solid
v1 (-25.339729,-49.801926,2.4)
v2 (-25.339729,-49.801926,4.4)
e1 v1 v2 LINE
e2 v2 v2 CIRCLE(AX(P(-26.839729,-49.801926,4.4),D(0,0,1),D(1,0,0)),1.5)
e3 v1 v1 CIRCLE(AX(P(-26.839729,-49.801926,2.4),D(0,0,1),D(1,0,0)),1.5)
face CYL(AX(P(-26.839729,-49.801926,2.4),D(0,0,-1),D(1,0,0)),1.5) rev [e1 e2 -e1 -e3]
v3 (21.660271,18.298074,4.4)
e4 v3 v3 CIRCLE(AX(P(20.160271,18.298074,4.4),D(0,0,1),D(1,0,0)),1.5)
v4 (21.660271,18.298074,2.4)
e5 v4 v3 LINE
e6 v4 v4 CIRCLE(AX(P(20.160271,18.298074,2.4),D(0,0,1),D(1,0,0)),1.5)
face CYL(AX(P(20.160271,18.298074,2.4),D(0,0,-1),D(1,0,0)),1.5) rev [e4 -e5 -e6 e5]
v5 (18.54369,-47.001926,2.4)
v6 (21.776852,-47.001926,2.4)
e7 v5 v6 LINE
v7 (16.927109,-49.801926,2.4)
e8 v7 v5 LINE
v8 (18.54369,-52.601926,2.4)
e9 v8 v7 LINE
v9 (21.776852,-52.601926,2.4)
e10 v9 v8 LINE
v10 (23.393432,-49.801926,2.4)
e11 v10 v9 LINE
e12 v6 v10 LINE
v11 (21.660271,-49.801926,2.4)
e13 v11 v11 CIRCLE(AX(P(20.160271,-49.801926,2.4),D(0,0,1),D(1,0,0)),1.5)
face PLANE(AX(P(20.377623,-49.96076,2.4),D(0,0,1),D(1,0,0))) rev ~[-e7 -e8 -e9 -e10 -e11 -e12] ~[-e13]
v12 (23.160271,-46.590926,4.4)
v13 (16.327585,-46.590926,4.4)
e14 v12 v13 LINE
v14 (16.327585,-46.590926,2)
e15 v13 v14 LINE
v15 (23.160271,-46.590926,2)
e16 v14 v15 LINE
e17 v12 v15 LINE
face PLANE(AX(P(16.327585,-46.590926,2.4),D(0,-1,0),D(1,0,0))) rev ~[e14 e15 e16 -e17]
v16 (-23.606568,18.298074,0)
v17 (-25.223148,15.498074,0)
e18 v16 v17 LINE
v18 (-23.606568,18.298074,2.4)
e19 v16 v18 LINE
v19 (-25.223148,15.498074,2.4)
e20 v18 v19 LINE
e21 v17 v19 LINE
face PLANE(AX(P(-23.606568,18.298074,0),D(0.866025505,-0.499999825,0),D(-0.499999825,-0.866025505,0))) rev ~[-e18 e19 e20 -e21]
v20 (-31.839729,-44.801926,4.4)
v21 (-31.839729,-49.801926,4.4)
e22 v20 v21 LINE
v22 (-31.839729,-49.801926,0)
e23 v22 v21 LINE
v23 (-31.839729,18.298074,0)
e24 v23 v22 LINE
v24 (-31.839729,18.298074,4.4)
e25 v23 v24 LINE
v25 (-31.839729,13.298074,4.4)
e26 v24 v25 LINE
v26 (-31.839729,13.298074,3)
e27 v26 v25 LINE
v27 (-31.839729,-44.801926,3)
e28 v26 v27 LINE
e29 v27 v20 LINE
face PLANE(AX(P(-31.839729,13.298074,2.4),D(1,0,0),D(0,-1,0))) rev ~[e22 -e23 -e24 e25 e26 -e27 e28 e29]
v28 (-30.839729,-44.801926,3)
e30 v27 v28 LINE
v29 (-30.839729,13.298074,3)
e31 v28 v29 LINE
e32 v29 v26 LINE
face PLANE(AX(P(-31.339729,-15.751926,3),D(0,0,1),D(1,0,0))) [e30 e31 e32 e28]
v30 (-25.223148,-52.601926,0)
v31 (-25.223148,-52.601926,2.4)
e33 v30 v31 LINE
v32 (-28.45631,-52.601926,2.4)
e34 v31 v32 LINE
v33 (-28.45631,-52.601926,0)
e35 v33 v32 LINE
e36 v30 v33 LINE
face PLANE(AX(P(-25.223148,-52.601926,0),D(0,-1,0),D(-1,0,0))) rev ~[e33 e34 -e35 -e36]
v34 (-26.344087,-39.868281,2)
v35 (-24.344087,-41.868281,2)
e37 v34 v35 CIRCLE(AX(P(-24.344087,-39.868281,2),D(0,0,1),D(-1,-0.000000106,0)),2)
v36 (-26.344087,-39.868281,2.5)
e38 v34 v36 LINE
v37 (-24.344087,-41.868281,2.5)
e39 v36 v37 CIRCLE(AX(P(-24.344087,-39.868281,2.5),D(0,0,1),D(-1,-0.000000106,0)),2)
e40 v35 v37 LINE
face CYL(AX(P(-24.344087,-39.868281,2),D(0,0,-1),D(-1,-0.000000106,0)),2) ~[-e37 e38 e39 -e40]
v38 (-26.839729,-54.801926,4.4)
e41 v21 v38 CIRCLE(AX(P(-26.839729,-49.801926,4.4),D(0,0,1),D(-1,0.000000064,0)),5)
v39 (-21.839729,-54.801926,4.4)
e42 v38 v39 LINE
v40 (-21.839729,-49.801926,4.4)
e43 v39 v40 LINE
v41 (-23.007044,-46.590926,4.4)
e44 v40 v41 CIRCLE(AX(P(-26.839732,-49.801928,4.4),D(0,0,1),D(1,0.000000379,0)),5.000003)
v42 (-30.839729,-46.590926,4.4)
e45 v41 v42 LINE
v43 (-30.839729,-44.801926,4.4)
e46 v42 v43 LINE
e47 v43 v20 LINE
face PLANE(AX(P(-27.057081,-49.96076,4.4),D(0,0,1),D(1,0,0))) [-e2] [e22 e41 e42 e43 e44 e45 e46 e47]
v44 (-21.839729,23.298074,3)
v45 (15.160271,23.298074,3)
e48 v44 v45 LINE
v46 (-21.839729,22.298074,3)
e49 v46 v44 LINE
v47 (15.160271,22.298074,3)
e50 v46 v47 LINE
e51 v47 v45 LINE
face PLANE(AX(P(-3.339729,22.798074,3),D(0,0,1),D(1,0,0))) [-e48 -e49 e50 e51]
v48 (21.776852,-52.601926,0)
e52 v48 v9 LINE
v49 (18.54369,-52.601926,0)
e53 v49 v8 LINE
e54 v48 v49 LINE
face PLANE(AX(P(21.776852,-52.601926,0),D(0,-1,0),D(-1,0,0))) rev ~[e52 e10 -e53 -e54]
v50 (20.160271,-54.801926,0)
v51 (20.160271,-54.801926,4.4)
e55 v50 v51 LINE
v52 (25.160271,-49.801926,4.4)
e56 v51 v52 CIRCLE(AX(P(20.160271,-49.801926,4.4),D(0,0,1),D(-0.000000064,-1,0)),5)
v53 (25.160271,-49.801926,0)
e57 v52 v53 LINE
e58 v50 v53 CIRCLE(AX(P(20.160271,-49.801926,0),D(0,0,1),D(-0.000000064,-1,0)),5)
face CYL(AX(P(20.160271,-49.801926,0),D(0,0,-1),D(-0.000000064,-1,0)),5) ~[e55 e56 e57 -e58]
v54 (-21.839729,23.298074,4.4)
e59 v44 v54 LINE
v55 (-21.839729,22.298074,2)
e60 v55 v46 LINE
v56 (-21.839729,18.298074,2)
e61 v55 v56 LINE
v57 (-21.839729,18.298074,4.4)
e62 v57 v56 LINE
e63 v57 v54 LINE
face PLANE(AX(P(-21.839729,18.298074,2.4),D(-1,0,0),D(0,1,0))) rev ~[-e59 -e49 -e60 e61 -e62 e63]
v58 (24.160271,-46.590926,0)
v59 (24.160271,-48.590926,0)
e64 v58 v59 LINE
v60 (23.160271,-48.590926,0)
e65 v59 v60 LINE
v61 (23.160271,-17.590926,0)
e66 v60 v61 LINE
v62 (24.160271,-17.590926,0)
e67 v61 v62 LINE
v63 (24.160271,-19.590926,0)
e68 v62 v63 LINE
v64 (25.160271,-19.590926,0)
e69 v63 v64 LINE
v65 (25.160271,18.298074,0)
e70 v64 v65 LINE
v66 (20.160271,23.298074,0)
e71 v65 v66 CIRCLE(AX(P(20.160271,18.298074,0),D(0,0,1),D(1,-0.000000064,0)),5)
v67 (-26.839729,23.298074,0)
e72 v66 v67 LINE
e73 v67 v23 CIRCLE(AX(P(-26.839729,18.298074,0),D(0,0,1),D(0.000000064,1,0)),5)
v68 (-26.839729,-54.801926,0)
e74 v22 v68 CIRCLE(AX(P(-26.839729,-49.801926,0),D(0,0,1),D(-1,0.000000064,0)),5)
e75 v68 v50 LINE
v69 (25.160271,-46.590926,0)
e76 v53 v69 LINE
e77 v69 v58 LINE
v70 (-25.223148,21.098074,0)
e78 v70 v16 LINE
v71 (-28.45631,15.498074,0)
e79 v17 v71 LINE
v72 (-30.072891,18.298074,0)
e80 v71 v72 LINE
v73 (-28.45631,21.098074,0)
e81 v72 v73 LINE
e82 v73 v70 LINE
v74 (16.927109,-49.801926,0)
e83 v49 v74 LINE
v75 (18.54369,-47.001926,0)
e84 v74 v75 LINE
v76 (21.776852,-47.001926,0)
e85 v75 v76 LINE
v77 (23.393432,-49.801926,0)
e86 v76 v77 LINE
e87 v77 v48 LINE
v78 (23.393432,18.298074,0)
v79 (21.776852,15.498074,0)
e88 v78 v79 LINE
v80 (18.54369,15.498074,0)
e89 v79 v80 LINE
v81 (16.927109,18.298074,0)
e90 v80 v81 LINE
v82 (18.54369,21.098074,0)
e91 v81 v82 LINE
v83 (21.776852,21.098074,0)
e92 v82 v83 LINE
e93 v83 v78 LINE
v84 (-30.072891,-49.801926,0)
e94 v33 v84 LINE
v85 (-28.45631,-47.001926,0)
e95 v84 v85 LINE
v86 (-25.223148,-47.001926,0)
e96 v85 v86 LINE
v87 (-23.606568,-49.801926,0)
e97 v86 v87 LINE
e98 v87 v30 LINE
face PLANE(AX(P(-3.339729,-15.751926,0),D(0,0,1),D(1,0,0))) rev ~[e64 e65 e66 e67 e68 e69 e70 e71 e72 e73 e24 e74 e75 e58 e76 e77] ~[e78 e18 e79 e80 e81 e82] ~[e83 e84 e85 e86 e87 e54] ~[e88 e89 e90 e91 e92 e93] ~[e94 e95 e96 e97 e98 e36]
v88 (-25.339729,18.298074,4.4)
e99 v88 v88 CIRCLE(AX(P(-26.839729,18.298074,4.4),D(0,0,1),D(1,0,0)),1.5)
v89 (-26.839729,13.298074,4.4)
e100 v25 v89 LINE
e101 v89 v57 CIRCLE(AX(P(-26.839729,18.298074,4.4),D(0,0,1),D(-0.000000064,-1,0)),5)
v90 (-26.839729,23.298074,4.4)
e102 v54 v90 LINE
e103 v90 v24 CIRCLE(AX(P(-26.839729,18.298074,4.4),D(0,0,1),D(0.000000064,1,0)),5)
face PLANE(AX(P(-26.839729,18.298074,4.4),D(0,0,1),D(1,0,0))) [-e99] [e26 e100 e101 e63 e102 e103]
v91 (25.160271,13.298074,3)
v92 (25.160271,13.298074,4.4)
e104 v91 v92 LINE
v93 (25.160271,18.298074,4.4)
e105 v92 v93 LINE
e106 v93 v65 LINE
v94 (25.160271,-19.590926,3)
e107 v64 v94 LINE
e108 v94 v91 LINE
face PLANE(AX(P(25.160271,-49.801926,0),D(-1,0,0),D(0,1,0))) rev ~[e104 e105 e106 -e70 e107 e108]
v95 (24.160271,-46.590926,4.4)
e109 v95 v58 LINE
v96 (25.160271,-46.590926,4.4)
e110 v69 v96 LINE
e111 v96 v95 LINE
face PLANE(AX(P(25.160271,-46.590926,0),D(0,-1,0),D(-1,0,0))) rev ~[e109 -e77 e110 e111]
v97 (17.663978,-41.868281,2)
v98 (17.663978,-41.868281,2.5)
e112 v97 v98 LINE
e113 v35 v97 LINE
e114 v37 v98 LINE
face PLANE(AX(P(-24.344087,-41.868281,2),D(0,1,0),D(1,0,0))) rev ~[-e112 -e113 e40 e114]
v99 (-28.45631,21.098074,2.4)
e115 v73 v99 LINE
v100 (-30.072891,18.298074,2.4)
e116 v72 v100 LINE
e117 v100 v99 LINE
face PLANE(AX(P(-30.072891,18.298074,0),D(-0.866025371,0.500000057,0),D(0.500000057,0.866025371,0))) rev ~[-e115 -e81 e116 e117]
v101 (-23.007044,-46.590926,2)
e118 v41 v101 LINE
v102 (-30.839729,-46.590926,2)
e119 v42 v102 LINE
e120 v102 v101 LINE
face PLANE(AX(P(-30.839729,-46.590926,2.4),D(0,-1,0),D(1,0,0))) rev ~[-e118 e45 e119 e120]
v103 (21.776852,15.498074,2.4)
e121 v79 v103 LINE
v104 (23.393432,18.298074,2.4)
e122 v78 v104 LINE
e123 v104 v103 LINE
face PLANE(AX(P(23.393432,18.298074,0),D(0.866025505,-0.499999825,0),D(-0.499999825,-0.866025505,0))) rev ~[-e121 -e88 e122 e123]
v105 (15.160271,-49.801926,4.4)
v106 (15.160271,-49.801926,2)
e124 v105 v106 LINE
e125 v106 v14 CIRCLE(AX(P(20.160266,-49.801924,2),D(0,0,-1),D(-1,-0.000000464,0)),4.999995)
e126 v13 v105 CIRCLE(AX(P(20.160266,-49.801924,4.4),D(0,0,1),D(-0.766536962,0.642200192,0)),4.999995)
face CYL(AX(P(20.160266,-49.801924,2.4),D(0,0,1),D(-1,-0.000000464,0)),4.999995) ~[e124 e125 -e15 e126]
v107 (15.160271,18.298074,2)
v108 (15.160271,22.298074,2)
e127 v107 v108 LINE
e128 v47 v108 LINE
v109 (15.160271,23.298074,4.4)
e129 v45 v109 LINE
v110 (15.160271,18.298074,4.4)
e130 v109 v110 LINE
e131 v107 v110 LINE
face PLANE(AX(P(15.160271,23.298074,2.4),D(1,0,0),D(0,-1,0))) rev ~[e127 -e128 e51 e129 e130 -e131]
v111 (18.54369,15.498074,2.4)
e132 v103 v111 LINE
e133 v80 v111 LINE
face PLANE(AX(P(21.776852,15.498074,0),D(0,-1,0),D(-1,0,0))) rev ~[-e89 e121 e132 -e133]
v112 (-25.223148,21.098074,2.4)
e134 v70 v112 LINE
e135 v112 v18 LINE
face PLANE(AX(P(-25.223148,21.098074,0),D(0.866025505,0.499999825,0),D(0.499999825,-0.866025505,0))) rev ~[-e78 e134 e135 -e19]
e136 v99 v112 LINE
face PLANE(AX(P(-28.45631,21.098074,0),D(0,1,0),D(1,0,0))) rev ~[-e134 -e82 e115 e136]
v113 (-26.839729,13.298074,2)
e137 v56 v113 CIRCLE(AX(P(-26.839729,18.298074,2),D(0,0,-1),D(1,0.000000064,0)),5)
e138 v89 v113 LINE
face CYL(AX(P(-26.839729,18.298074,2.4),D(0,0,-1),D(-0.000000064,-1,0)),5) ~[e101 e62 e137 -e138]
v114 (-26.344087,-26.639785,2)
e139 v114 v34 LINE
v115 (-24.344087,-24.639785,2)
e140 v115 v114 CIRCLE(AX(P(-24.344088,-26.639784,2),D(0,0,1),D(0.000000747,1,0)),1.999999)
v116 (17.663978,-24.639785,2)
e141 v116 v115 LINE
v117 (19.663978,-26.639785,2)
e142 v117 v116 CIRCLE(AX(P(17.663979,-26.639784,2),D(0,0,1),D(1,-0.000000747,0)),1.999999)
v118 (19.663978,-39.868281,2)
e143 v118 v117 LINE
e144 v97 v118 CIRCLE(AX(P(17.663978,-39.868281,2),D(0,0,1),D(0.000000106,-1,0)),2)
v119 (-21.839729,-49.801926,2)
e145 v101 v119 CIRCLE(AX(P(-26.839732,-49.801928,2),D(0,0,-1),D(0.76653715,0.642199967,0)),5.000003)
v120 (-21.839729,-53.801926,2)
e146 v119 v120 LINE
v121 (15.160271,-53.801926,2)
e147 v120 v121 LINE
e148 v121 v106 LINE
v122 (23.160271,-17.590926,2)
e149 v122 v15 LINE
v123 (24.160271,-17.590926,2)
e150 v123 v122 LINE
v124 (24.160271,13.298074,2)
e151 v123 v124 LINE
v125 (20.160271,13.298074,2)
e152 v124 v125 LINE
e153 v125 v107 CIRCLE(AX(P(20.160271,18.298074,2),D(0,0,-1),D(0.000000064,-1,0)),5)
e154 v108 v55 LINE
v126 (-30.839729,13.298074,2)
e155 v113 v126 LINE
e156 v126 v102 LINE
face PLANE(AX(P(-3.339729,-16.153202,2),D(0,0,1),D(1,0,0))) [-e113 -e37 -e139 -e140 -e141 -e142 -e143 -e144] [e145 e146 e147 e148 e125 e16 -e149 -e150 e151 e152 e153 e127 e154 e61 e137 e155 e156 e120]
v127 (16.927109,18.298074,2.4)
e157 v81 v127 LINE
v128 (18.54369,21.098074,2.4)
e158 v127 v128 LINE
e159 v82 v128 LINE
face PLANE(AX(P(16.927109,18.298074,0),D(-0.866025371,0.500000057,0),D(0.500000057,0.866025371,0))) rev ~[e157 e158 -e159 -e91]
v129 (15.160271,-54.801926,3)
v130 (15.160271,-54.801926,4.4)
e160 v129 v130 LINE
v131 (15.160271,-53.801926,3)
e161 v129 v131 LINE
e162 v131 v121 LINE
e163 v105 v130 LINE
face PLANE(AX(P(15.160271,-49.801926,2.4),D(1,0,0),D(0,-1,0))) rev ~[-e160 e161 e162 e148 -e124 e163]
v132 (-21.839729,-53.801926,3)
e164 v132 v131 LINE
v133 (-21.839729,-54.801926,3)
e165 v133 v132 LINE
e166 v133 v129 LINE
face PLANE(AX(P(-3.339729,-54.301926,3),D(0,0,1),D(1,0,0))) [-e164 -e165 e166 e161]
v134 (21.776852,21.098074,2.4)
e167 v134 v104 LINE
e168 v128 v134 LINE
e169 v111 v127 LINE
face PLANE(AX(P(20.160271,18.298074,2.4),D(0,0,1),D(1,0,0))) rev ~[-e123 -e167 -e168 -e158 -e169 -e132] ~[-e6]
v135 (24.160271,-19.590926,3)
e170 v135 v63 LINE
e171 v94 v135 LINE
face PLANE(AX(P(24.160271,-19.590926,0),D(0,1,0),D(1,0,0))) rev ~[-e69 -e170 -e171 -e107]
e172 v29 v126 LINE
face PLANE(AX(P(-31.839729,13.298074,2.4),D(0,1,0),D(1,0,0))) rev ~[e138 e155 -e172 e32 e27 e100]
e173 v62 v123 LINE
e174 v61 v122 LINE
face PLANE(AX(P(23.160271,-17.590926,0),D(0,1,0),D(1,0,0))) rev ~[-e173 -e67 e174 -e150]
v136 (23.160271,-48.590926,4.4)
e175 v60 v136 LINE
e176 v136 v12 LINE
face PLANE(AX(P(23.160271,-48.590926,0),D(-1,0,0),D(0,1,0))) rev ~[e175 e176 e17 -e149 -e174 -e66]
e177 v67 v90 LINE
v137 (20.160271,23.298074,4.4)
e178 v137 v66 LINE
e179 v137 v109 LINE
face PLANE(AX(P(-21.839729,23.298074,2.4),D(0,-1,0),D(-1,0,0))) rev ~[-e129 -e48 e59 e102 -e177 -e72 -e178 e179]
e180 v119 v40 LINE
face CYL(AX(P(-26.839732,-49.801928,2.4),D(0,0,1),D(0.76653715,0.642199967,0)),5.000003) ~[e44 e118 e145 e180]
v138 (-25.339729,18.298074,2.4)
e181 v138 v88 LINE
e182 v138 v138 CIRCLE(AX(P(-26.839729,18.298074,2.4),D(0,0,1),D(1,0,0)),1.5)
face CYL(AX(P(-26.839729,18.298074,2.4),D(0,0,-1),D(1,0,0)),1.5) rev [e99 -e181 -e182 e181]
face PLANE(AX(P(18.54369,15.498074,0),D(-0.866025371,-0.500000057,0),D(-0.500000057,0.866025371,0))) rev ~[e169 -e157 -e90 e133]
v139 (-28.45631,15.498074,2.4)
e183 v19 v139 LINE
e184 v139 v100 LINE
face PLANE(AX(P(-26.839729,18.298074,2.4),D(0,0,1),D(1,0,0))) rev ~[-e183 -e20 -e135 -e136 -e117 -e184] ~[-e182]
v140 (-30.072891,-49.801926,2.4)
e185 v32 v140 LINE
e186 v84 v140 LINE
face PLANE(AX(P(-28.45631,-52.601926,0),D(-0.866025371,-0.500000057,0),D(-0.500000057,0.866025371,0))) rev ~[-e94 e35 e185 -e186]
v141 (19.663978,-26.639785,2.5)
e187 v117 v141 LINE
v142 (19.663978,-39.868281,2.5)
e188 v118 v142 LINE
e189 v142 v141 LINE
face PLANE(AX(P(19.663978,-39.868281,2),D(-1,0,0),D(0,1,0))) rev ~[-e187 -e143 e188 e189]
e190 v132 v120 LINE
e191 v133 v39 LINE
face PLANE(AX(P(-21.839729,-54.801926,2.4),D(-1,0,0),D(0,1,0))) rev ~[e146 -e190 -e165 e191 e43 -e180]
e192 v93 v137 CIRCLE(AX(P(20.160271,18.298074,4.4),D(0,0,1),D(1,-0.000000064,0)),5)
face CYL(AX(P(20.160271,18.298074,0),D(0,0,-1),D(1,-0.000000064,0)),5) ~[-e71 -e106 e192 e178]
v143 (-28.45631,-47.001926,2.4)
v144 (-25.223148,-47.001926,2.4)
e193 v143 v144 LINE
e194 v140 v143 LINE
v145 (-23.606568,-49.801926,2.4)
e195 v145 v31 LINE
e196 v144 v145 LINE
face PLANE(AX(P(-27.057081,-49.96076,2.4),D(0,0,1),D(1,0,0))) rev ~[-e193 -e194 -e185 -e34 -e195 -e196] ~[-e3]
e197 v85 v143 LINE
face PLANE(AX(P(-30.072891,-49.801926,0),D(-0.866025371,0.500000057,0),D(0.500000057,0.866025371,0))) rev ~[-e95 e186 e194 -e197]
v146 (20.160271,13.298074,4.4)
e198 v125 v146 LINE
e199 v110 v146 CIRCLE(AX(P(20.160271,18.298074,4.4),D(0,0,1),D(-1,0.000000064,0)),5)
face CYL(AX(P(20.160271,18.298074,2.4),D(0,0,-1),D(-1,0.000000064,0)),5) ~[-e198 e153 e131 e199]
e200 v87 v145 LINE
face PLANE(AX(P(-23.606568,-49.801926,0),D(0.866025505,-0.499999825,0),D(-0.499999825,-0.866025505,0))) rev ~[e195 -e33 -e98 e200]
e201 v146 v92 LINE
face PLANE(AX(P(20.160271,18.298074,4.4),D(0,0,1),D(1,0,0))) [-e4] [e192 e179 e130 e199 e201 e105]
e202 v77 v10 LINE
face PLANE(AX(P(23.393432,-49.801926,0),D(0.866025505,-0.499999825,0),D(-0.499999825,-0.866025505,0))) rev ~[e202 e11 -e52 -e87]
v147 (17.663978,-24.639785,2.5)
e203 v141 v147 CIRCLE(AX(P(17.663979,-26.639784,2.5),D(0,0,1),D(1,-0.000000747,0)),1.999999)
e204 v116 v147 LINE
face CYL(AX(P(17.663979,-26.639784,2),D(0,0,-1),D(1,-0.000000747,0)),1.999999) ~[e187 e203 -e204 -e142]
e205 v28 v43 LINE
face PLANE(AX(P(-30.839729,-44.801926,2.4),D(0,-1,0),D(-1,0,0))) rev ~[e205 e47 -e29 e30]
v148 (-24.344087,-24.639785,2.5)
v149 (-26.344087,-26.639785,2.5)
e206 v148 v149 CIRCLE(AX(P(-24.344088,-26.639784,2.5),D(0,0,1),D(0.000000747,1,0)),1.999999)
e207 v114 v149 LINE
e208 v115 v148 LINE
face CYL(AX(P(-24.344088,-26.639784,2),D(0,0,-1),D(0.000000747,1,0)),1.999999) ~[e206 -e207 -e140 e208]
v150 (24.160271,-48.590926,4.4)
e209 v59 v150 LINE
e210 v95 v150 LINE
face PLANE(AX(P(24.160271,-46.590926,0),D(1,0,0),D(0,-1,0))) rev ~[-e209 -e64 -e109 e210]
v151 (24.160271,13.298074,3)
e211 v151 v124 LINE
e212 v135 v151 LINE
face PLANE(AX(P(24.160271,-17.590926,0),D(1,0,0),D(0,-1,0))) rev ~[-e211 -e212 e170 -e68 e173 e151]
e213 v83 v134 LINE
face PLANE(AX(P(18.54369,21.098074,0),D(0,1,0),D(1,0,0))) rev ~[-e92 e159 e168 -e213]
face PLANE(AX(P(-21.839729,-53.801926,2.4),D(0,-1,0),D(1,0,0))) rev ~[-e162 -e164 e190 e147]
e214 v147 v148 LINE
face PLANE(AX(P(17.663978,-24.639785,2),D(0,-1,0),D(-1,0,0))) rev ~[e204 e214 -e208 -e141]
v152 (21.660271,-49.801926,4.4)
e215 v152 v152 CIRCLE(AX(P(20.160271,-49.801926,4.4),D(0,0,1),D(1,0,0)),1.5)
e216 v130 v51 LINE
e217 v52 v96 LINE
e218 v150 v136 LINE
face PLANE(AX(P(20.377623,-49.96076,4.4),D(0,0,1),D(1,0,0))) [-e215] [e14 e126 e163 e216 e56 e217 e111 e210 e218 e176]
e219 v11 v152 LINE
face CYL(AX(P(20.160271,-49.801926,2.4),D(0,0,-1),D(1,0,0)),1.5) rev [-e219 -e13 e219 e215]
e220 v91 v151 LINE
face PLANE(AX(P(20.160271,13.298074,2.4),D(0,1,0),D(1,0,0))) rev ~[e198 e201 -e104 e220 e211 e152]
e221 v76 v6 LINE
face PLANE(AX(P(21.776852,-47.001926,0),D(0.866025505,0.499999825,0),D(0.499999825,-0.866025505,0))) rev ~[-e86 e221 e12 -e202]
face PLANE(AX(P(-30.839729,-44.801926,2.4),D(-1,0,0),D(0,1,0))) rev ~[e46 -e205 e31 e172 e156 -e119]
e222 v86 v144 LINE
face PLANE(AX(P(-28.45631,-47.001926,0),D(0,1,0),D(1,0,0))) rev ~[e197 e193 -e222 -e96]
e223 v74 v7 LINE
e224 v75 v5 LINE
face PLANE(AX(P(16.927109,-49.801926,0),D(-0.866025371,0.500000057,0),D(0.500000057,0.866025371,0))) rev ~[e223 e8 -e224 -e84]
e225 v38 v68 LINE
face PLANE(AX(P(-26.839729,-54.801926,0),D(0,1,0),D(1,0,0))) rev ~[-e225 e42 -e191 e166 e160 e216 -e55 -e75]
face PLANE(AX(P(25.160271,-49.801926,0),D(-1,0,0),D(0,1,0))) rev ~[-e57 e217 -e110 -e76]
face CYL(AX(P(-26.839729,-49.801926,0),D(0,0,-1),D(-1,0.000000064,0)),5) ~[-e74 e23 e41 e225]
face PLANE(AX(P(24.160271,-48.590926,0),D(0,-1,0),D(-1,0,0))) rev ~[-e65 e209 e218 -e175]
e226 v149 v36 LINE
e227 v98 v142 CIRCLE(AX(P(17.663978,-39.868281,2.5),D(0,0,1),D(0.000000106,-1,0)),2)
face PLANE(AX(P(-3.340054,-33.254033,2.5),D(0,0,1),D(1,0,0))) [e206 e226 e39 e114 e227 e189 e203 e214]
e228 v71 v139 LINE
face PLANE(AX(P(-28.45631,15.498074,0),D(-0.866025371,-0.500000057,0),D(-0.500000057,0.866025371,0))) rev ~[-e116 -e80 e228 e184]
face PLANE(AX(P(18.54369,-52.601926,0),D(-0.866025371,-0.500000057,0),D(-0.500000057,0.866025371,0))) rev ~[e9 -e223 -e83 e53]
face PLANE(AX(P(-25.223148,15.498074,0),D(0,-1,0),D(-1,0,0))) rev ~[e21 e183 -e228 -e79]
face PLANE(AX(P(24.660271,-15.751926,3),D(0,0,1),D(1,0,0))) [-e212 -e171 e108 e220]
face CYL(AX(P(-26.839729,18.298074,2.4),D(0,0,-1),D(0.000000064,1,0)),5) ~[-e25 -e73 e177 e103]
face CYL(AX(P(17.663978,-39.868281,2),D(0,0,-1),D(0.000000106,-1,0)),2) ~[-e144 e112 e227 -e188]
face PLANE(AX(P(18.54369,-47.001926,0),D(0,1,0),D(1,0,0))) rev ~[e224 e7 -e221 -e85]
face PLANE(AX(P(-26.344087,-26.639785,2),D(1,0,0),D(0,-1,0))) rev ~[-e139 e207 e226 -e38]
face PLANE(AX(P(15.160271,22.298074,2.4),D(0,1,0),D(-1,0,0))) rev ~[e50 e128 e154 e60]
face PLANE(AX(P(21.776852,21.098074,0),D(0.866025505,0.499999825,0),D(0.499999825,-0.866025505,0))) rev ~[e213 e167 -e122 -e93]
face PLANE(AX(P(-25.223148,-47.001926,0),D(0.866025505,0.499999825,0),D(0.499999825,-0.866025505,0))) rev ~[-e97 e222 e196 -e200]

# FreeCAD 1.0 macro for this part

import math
import FreeCAD as App
import Part
import Sketcher

V = App.Vector
Q = App.Units.Quantity

doc = App.newDocument("Part")
body = doc.addObject("PartDesign::Body", "Body")

# Sketch on XY plane
sketch1 = doc.addObject("Sketcher::SketchObject", "Sketch")
body.addObject(sketch1)
sketch1.AttachmentSupport = (doc.XY_Plane, [""])
sketch1.MapMode = "FlatFace"
sketch1.addGeometry([
    Part.LineSegment(V(20.160271, 23.298074, 0), V(-26.839729, 23.298074, 0)),  # 0
    Part.ArcOfCircle(Part.Circle(V(-26.839729, 18.298074, 0), V(0, 0, 1), 5), math.radians(89.999996), math.radians(180.000004)),  # 1
    Part.LineSegment(V(-31.839729, 18.298074, 0), V(-31.839729, -49.801926, 0)),  # 2
    Part.ArcOfCircle(Part.Circle(V(-26.839729, -49.801926, 0), V(0, 0, 1), 5), math.radians(179.999996), math.radians(270.000004)),  # 3
    Part.LineSegment(V(-26.839729, -54.801926, 0), V(20.160271, -54.801926, 0)),  # 4
    Part.ArcOfCircle(Part.Circle(V(20.160271, -49.801926, 0), V(0, 0, 1), 5), math.radians(-90.000004), math.radians(0.000004)),  # 5
    Part.LineSegment(V(25.160271, -49.801926, 0), V(25.160271, 18.298074, 0)),  # 6
    Part.ArcOfCircle(Part.Circle(V(20.160271, 18.298074, 0), V(0, 0, 1), 5), math.radians(-0.000004), math.radians(90.000004)),  # 7
    Part.LineSegment(V(-28.45631, -52.601926, 0), V(-30.072891, -49.801926, 0)),  # 8
    Part.LineSegment(V(-30.072891, -49.801926, 0), V(-28.45631, -47.001926, 0)),  # 9
    Part.LineSegment(V(-28.45631, -47.001926, 0), V(-25.223148, -47.001926, 0)),  # 10
    Part.LineSegment(V(-25.223148, -47.001926, 0), V(-23.606568, -49.801926, 0)),  # 11
    Part.LineSegment(V(-23.606568, -49.801926, 0), V(-25.223148, -52.601926, 0)),  # 12
    Part.LineSegment(V(-25.223148, -52.601926, 0), V(-28.45631, -52.601926, 0)),  # 13
    Part.LineSegment(V(18.54369, -52.601926, 0), V(16.927109, -49.801926, 0)),  # 14
    Part.LineSegment(V(16.927109, -49.801926, 0), V(18.54369, -47.001926, 0)),  # 15
    Part.LineSegment(V(18.54369, -47.001926, 0), V(21.776852, -47.001926, 0)),  # 16
    Part.LineSegment(V(21.776852, -47.001926, 0), V(23.393432, -49.801926, 0)),  # 17
    Part.LineSegment(V(23.393432, -49.801926, 0), V(21.776852, -52.601926, 0)),  # 18
    Part.LineSegment(V(21.776852, -52.601926, 0), V(18.54369, -52.601926, 0)),  # 19
    Part.LineSegment(V(-28.45631, 15.498074, 0), V(-30.072891, 18.298074, 0)),  # 20
    Part.LineSegment(V(-30.072891, 18.298074, 0), V(-28.45631, 21.098074, 0)),  # 21
    Part.LineSegment(V(-28.45631, 21.098074, 0), V(-25.223148, 21.098074, 0)),  # 22
    Part.LineSegment(V(-25.223148, 21.098074, 0), V(-23.606568, 18.298074, 0)),  # 23
    Part.LineSegment(V(-23.606568, 18.298074, 0), V(-25.223148, 15.498074, 0)),  # 24
    Part.LineSegment(V(-25.223148, 15.498074, 0), V(-28.45631, 15.498074, 0)),  # 25
    Part.LineSegment(V(18.54369, 15.498074, 0), V(16.927109, 18.298074, 0)),  # 26
    Part.LineSegment(V(16.927109, 18.298074, 0), V(18.54369, 21.098074, 0)),  # 27
    Part.LineSegment(V(18.54369, 21.098074, 0), V(21.776852, 21.098074, 0)),  # 28
    Part.LineSegment(V(21.776852, 21.098074, 0), V(23.393432, 18.298074, 0)),  # 29
    Part.LineSegment(V(23.393432, 18.298074, 0), V(21.776852, 15.498074, 0)),  # 30
    Part.LineSegment(V(21.776852, 15.498074, 0), V(18.54369, 15.498074, 0)),  # 31
], False)
sketch1.addConstraint([
    Sketcher.Constraint("Tangent", 0, 2, 1, 1),
    Sketcher.Constraint("Tangent", 1, 2, 2, 1),
    Sketcher.Constraint("Tangent", 2, 2, 3, 1),
    Sketcher.Constraint("Tangent", 3, 2, 4, 1),
    Sketcher.Constraint("Tangent", 4, 2, 5, 1),
    Sketcher.Constraint("Tangent", 5, 2, 6, 1),
    Sketcher.Constraint("Tangent", 6, 2, 7, 1),
    Sketcher.Constraint("Tangent", 7, 2, 0, 1),
    Sketcher.Constraint("Coincident", 8, 2, 9, 1),
    Sketcher.Constraint("Coincident", 9, 2, 10, 1),
    Sketcher.Constraint("Coincident", 10, 2, 11, 1),
    Sketcher.Constraint("Coincident", 11, 2, 12, 1),
    Sketcher.Constraint("Coincident", 12, 2, 13, 1),
    Sketcher.Constraint("Coincident", 13, 2, 8, 1),
    Sketcher.Constraint("Coincident", 14, 2, 15, 1),
    Sketcher.Constraint("Coincident", 15, 2, 16, 1),
    Sketcher.Constraint("Coincident", 16, 2, 17, 1),
    Sketcher.Constraint("Coincident", 17, 2, 18, 1),
    Sketcher.Constraint("Coincident", 18, 2, 19, 1),
    Sketcher.Constraint("Coincident", 19, 2, 14, 1),
    Sketcher.Constraint("Coincident", 20, 2, 21, 1),
    Sketcher.Constraint("Coincident", 21, 2, 22, 1),
    Sketcher.Constraint("Coincident", 22, 2, 23, 1),
    Sketcher.Constraint("Coincident", 23, 2, 24, 1),
    Sketcher.Constraint("Coincident", 24, 2, 25, 1),
    Sketcher.Constraint("Coincident", 25, 2, 20, 1),
    Sketcher.Constraint("Coincident", 26, 2, 27, 1),
    Sketcher.Constraint("Coincident", 27, 2, 28, 1),
    Sketcher.Constraint("Coincident", 28, 2, 29, 1),
    Sketcher.Constraint("Coincident", 29, 2, 30, 1),
    Sketcher.Constraint("Coincident", 30, 2, 31, 1),
    Sketcher.Constraint("Coincident", 31, 2, 26, 1),
    Sketcher.Constraint("Horizontal", 0),
    Sketcher.Constraint("Vertical", 2),
    Sketcher.Constraint("Horizontal", 4),
    Sketcher.Constraint("Vertical", 6),
    Sketcher.Constraint("Horizontal", 10),
    Sketcher.Constraint("Horizontal", 13),
    Sketcher.Constraint("Horizontal", 16),
    Sketcher.Constraint("Horizontal", 19),
    Sketcher.Constraint("Horizontal", 22),
    Sketcher.Constraint("Horizontal", 25),
    Sketcher.Constraint("Horizontal", 28),
    Sketcher.Constraint("Horizontal", 31),
    Sketcher.Constraint("Equal", 1, 3),
    Sketcher.Constraint("Equal", 3, 5),
    Sketcher.Constraint("Equal", 5, 7),
    Sketcher.Constraint("Parallel", 8, 11),
    Sketcher.Constraint("Parallel", 9, 12),
    Sketcher.Constraint("Parallel", 11, 14),
    Sketcher.Constraint("Parallel", 12, 15),
    Sketcher.Constraint("Parallel", 14, 17),
    Sketcher.Constraint("Parallel", 15, 18),
    Sketcher.Constraint("Parallel", 17, 20),
    Sketcher.Constraint("Parallel", 18, 21),
    Sketcher.Constraint("Parallel", 20, 23),
    Sketcher.Constraint("Parallel", 21, 24),
    Sketcher.Constraint("Parallel", 23, 26),
    Sketcher.Constraint("Parallel", 24, 27),
    Sketcher.Constraint("Parallel", 26, 29),
    Sketcher.Constraint("Parallel", 27, 30),
    Sketcher.Constraint("Horizontal", 5, 2, 8, 2),
    Sketcher.Constraint("Horizontal", 8, 2, 11, 2),
    Sketcher.Constraint("Horizontal", 11, 2, 14, 2),
    Sketcher.Constraint("Horizontal", 10, 2, 15, 2),
    Sketcher.Constraint("Horizontal", 14, 2, 17, 2),
    Sketcher.Constraint("Horizontal", 13, 2, 18, 2),
    Sketcher.Constraint("Horizontal", 6, 2, 20, 2),
    Sketcher.Constraint("Horizontal", 20, 2, 23, 2),
    Sketcher.Constraint("Horizontal", 23, 2, 26, 2),
    Sketcher.Constraint("Horizontal", 22, 2, 27, 2),
    Sketcher.Constraint("Horizontal", 26, 2, 29, 2),
    Sketcher.Constraint("Horizontal", 25, 2, 30, 2),
    Sketcher.Constraint("Vertical", 10, 2, 12, 2),
    Sketcher.Constraint("Vertical", 9, 2, 13, 2),
    Sketcher.Constraint("Vertical", 8, 2, 20, 2),
    Sketcher.Constraint("Vertical", 13, 2, 21, 2),
    Sketcher.Constraint("Vertical", 12, 2, 22, 2),
    Sketcher.Constraint("Vertical", 22, 2, 24, 2),
    Sketcher.Constraint("Vertical", 14, 2, 26, 2),
    Sketcher.Constraint("Vertical", 18, 2, 28, 2),
    Sketcher.Constraint("Equal", 13, 16),
    Sketcher.Constraint("Radius", 1, Q("5 mm")),
    Sketcher.Constraint("DistanceX", 0, 2, 0, 1, Q("47 mm")),
    Sketcher.Constraint("Angle", 8, Q("120.000004 deg")),
    Sketcher.Constraint("DistanceY", 2, 2, 2, 1, Q("68.1 mm")),
    Sketcher.Constraint("DistanceY", 8, 2, 9, 2, Q("2.8 mm")),
    Sketcher.Constraint("DistanceX", 10, 1, 10, 2, Q("3.233162 mm")),
    Sketcher.Constraint("DistanceX", 1, 3, -1, 1, Q("26.839729 mm")),
    Sketcher.Constraint("DistanceX", 8, 2, -1, 1, Q("30.072891 mm")),
    Sketcher.Constraint("DistanceX", -1, 1, 14, 2, Q("16.927109 mm")),
    Sketcher.Constraint("DistanceY", -1, 1, 1, 3, Q("18.298074 mm")),
])
pad1 = doc.addObject("PartDesign::Pad", "Pad")
body.addObject(pad1)
pad1.Profile = sketch1
pad1.Length = 2.4

# Sketch on XY plane
sketch2 = doc.addObject("Sketcher::SketchObject", "Sketch001")
body.addObject(sketch2)
sketch2.AttachmentSupport = (doc.XY_Plane, [""])
sketch2.MapMode = "FlatFace"
sketch2.AttachmentOffset = App.Placement(V(0, 0, 2.4), App.Rotation())
sketch2.addGeometry([
    Part.LineSegment(V(-21.839729, 23.298074, 0), V(-26.839729, 23.298074, 0)),  # 0
    Part.ArcOfCircle(Part.Circle(V(-26.839729, 18.298074, 0), V(0, 0, 1), 5), math.radians(89.999996), math.radians(180.000004)),  # 1
    Part.LineSegment(V(-31.839729, 18.298074, 0), V(-31.839729, 13.298074, 0)),  # 2
    Part.LineSegment(V(-31.839729, 13.298074, 0), V(-26.839729, 13.298074, 0)),  # 3
    Part.ArcOfCircle(Part.Circle(V(-26.839729, 18.298074, 0), V(0, 0, 1), 5), math.radians(-90.000004), math.radians(0.000004)),  # 4
    Part.LineSegment(V(-21.839729, 18.298074, 0), V(-21.839729, 23.298074, 0)),  # 5
    Part.Circle(V(-26.839729, 18.298074, 0), V(0, 0, 1), 1.5),  # 6
    Part.LineSegment(V(20.160271, 23.298074, 0), V(15.160271, 23.298074, 0)),  # 7
    Part.LineSegment(V(15.160271, 23.298074, 0), V(15.160271, 18.298074, 0)),  # 8
    Part.ArcOfCircle(Part.Circle(V(20.160271, 18.298074, 0), V(0, 0, 1), 5), math.radians(179.999996), math.radians(270.000004)),  # 9
    Part.LineSegment(V(20.160271, 13.298074, 0), V(25.160271, 13.298074, 0)),  # 10
    Part.LineSegment(V(25.160271, 13.298074, 0), V(25.160271, 18.298074, 0)),  # 11
    Part.ArcOfCircle(Part.Circle(V(20.160271, 18.298074, 0), V(0, 0, 1), 5), math.radians(-0.000004), math.radians(90.000004)),  # 12
    Part.Circle(V(20.160271, 18.298074, 0), V(0, 0, 1), 1.5),  # 13
    Part.LineSegment(V(25.160271, -49.801926, 0), V(25.160271, -44.801926, 0)),  # 14
    Part.LineSegment(V(25.160271, -44.801926, 0), V(24.160271, -44.801926, 0)),  # 15
    Part.LineSegment(V(24.160271, -44.801926, 0), V(24.160271, -46.590926, 0)),  # 16
    Part.LineSegment(V(24.160271, -46.590926, 0), V(16.327585, -46.590926, 0)),  # 17
    Part.ArcOfCircle(Part.Circle(V(20.160266, -49.801924, 0), V(0, 0, 1), 4.999995), math.radians(140.043921), math.radians(180.000027)),  # 18
    Part.LineSegment(V(15.160271, -49.801926, 0), V(15.160271, -54.801926, 0)),  # 19
    Part.LineSegment(V(15.160271, -54.801926, 0), V(20.160271, -54.801926, 0)),  # 20
    Part.ArcOfCircle(Part.Circle(V(20.160271, -49.801926, 0), V(0, 0, 1), 5), math.radians(-90.000004), math.radians(0.000004)),  # 21
    Part.Circle(V(20.160271, -49.801926, 0), V(0, 0, 1), 1.5),  # 22
    Part.LineSegment(V(-30.839729, -44.801926, 0), V(-31.839729, -44.801926, 0)),  # 23
    Part.LineSegment(V(-31.839729, -44.801926, 0), V(-31.839729, -49.801926, 0)),  # 24
    Part.ArcOfCircle(Part.Circle(V(-26.839729, -49.801926, 0), V(0, 0, 1), 5), math.radians(179.999996), math.radians(270.000004)),  # 25
    Part.LineSegment(V(-26.839729, -54.801926, 0), V(-21.839729, -54.801926, 0)),  # 26
    Part.LineSegment(V(-21.839729, -54.801926, 0), V(-21.839729, -49.801926, 0)),  # 27
    Part.ArcOfCircle(Part.Circle(V(-26.839732, -49.801928, 0), V(0, 0, 1), 5.000003), math.radians(0.000022), math.radians(39.956062)),  # 28
    Part.LineSegment(V(-23.007044, -46.590926, 0), V(-30.839729, -46.590926, 0)),  # 29
    Part.LineSegment(V(-30.839729, -46.590926, 0), V(-30.839729, -44.801926, 0)),  # 30
    Part.Circle(V(-26.839729, -49.801926, 0), V(0, 0, 1), 1.5),  # 31
], False)
sketch2.addConstraint([
    Sketcher.Constraint("Tangent", 0, 2, 1, 1),
    Sketcher.Constraint("Tangent", 1, 2, 2, 1),
    Sketcher.Constraint("Coincident", 2, 2, 3, 1),
    Sketcher.Constraint("Tangent", 3, 2, 4, 1),
    Sketcher.Constraint("Tangent", 4, 2, 5, 1),
    Sketcher.Constraint("Coincident", 5, 2, 0, 1),
    Sketcher.Constraint("Coincident", 7, 2, 8, 1),
    Sketcher.Constraint("Tangent", 8, 2, 9, 1),
    Sketcher.Constraint("Tangent", 9, 2, 10, 1),
    Sketcher.Constraint("Coincident", 10, 2, 11, 1),
    Sketcher.Constraint("Tangent", 11, 2, 12, 1),
    Sketcher.Constraint("Tangent", 12, 2, 7, 1),
    Sketcher.Constraint("Coincident", 14, 2, 15, 1),
    Sketcher.Constraint("Coincident", 15, 2, 16, 1),
    Sketcher.Constraint("Coincident", 16, 2, 17, 1),
    Sketcher.Constraint("Coincident", 17, 2, 18, 1),
    Sketcher.Constraint("Tangent", 18, 2, 19, 1),
    Sketcher.Constraint("Coincident", 19, 2, 20, 1),
    Sketcher.Constraint("Tangent", 20, 2, 21, 1),
    Sketcher.Constraint("Tangent", 21, 2, 14, 1),
    Sketcher.Constraint("Coincident", 23, 2, 24, 1),
    Sketcher.Constraint("Tangent", 24, 2, 25, 1),
    Sketcher.Constraint("Tangent", 25, 2, 26, 1),
    Sketcher.Constraint("Coincident", 26, 2, 27, 1),
    Sketcher.Constraint("Tangent", 27, 2, 28, 1),
    Sketcher.Constraint("Coincident", 28, 2, 29, 1),
    Sketcher.Constraint("Coincident", 29, 2, 30, 1),
    Sketcher.Constraint("Coincident", 30, 2, 23, 1),
    Sketcher.Constraint("Horizontal", 0),
    Sketcher.Constraint("Vertical", 2),
    Sketcher.Constraint("Horizontal", 3),
    Sketcher.Constraint("Vertical", 5),
    Sketcher.Constraint("Horizontal", 7),
    Sketcher.Constraint("Vertical", 8),
    Sketcher.Constraint("Horizontal", 10),
    Sketcher.Constraint("Vertical", 11),
    Sketcher.Constraint("Vertical", 14),
    Sketcher.Constraint("Horizontal", 15),
    Sketcher.Constraint("Vertical", 16),
    Sketcher.Constraint("Horizontal", 17),
    Sketcher.Constraint("Vertical", 19),
    Sketcher.Constraint("Horizontal", 20),
    Sketcher.Constraint("Horizontal", 23),
    Sketcher.Constraint("Vertical", 24),
    Sketcher.Constraint("Horizontal", 26),
    Sketcher.Constraint("Vertical", 27),
    Sketcher.Constraint("Horizontal", 29),
    Sketcher.Constraint("Vertical", 30),
    Sketcher.Constraint("Coincident", 4, 3, 1, 3),
    Sketcher.Constraint("Coincident", 6, 3, 1, 3),
    Sketcher.Constraint("Coincident", 12, 3, 9, 3),
    Sketcher.Constraint("Coincident", 13, 3, 9, 3),
    Sketcher.Constraint("Coincident", 21, 3, 18, 3),
    Sketcher.Constraint("Coincident", 22, 3, 18, 3),
    Sketcher.Constraint("Coincident", 28, 3, 25, 3),
    Sketcher.Constraint("Coincident", 31, 3, 25, 3),
    Sketcher.Constraint("Equal", 1, 4),
    Sketcher.Constraint("Equal", 4, 9),
    Sketcher.Constraint("Equal", 9, 12),
    Sketcher.Constraint("Equal", 6, 13),
    Sketcher.Constraint("Equal", 12, 21),
    Sketcher.Constraint("Equal", 13, 22),
    Sketcher.Constraint("Equal", 21, 25),
    Sketcher.Constraint("Equal", 22, 31),
    Sketcher.Constraint("Horizontal", 6, 3, 9, 3),
    Sketcher.Constraint("Horizontal", 22, 3, 25, 3),
    Sketcher.Constraint("Horizontal", 15, 2, 23, 2),
    Sketcher.Constraint("Horizontal", 17, 2, 28, 2),
    Sketcher.Constraint("Vertical", 13, 3, 21, 3),
    Sketcher.Constraint("Vertical", 6, 3, 25, 3),
    Sketcher.Constraint("Vertical", 8, 2, 18, 2),
    Sketcher.Constraint("Vertical", 5, 2, 26, 2),
    Sketcher.Constraint("Equal", 15, 23),
    Sketcher.Constraint("Equal", 11, 14),
    Sketcher.Constraint("Diameter", 6, Q("3 mm")),
    Sketcher.Constraint("Radius", 1, Q("5 mm")),
    Sketcher.Constraint("DistanceX", 15, 2, 15, 1, Q("1 mm")),
    Sketcher.Constraint("DistanceX", 4, 3, 9, 3, Q("46.999999 mm")),
    Sketcher.Constraint("DistanceY", 18, 3, 12, 3, Q("68.099998 mm")),
    Sketcher.Constraint("DistanceY", 16, 2, 16, 1, Q("1.789 mm")),
    Sketcher.Constraint("DistanceX", 1, 3, -1, 1, Q("26.839729 mm")),
    Sketcher.Constraint("DistanceY", -1, 1, 1, 3, Q("18.298074 mm")),
])
pad2 = doc.addObject("PartDesign::Pad", "Pad001")
body.addObject(pad2)
pad2.Profile = sketch2
pad2.Length = 2

# Sketch on XY plane
sketch3 = doc.addObject("Sketcher::SketchObject", "Sketch002")
body.addObject(sketch3)
sketch3.AttachmentSupport = (doc.XY_Plane, [""])
sketch3.MapMode = "FlatFace"
sketch3.AttachmentOffset = App.Placement(V(0, 0, 2.4), App.Rotation())
sketch3.addGeometry([
    Part.LineSegment(V(15.160271, 22.298074, 0), V(-21.839729, 22.298074, 0)),  # 0
    Part.LineSegment(V(-21.839729, 22.298074, 0), V(-21.839729, 18.298074, 0)),  # 1
    Part.ArcOfCircle(Part.Circle(V(-26.839729, 18.298074, 0), V(0, 0, 1), 5), math.radians(-90.000004), math.radians(0.000004)),  # 2
    Part.LineSegment(V(-26.839729, 13.298074, 0), V(-30.839729, 13.298074, 0)),  # 3
    Part.LineSegment(V(-30.839729, 13.298074, 0), V(-30.839729, -46.590926, 0)),  # 4
    Part.LineSegment(V(-30.839729, -46.590926, 0), V(-23.007044, -46.590926, 0)),  # 5
    Part.ArcOfCircle(Part.Circle(V(-26.839732, -49.801928, 0), V(0, 0, 1), 5.000003), math.radians(0.000022), math.radians(39.956062)),  # 6
    Part.LineSegment(V(-21.839729, -49.801926, 0), V(-21.839729, -53.801926, 0)),  # 7
    Part.LineSegment(V(-21.839729, -53.801926, 0), V(15.160271, -53.801926, 0)),  # 8
    Part.LineSegment(V(15.160271, -53.801926, 0), V(15.160271, -49.801926, 0)),  # 9
    Part.ArcOfCircle(Part.Circle(V(20.160266, -49.801924, 0), V(0, 0, 1), 4.999995), math.radians(140.043921), math.radians(180.000027)),  # 10
    Part.LineSegment(V(16.327585, -46.590926, 0), V(24.160271, -46.590926, 0)),  # 11
    Part.LineSegment(V(24.160271, -46.590926, 0), V(24.160271, 13.298074, 0)),  # 12
    Part.LineSegment(V(24.160271, 13.298074, 0), V(20.160271, 13.298074, 0)),  # 13
    Part.ArcOfCircle(Part.Circle(V(20.160271, 18.298074, 0), V(0, 0, 1), 5), math.radians(179.999996), math.radians(270.000004)),  # 14
    Part.LineSegment(V(15.160271, 18.298074, 0), V(15.160271, 22.298074, 0)),  # 15
], False)
sketch3.addConstraint([
    Sketcher.Constraint("Coincident", 0, 2, 1, 1),
    Sketcher.Constraint("Tangent", 1, 2, 2, 2),
    Sketcher.Constraint("Tangent", 2, 1, 3, 1),
    Sketcher.Constraint("Coincident", 3, 2, 4, 1),
    Sketcher.Constraint("Coincident", 4, 2, 5, 1),
    Sketcher.Constraint("Coincident", 5, 2, 6, 2),
    Sketcher.Constraint("Tangent", 6, 1, 7, 1),
    Sketcher.Constraint("Coincident", 7, 2, 8, 1),
    Sketcher.Constraint("Coincident", 8, 2, 9, 1),
    Sketcher.Constraint("Tangent", 9, 2, 10, 2),
    Sketcher.Constraint("Coincident", 10, 1, 11, 1),
    Sketcher.Constraint("Coincident", 11, 2, 12, 1),
    Sketcher.Constraint("Coincident", 12, 2, 13, 1),
    Sketcher.Constraint("Tangent", 13, 2, 14, 2),
    Sketcher.Constraint("Tangent", 14, 1, 15, 1),
    Sketcher.Constraint("Coincident", 15, 2, 0, 1),
    Sketcher.Constraint("Horizontal", 0),
    Sketcher.Constraint("Vertical", 1),
    Sketcher.Constraint("Horizontal", 3),
    Sketcher.Constraint("Vertical", 4),
    Sketcher.Constraint("Horizontal", 5),
    Sketcher.Constraint("Vertical", 7),
    Sketcher.Constraint("Horizontal", 8),
    Sketcher.Constraint("Vertical", 9),
    Sketcher.Constraint("Horizontal", 11),
    Sketcher.Constraint("Vertical", 12),
    Sketcher.Constraint("Horizontal", 13),
    Sketcher.Constraint("Vertical", 15),
    Sketcher.Constraint("Equal", 2, 14),
    Sketcher.Constraint("Horizontal", 2, 3, 14, 3),
    Sketcher.Constraint("Horizontal", 6, 1, 9, 2),
    Sketcher.Constraint("Horizontal", 5, 2, 10, 1),
    Sketcher.Constraint("Vertical", 1, 2, 6, 1),
    Sketcher.Constraint("Vertical", 9, 2, 14, 1),
    Sketcher.Constraint("Equal", 5, 11),
    Sketcher.Constraint("Equal", 3, 13),
    Sketcher.Constraint("Equal", 13, 1),
    Sketcher.Constraint("Equal", 1, 7),
    Sketcher.Constraint("Radius", 2, Q("5 mm")),
    Sketcher.Constraint("DistanceX", 0, 2, 0, 1, Q("37 mm")),
    Sketcher.Constraint("DistanceX", 3, 2, 3, 1, Q("4 mm")),
    Sketcher.Constraint("DistanceX", 6, 3, 10, 3, Q("46.999998 mm")),
    Sketcher.Constraint("DistanceY", 6, 3, 2, 3, Q("68.100002 mm")),
    Sketcher.Constraint("DistanceY", 4, 2, 4, 1, Q("59.889 mm")),
    Sketcher.Constraint("DistanceX", 2, 3, -1, 1, Q("26.839729 mm")),
    Sketcher.Constraint("DistanceY", -1, 1, 2, 3, Q("18.298074 mm")),
])
pocket1 = doc.addObject("PartDesign::Pocket", "Pocket")
body.addObject(pocket1)
pocket1.Profile = sketch3
pocket1.Length = 0.4

# Sketch on XY plane
sketch4 = doc.addObject("Sketcher::SketchObject", "Sketch003")
body.addObject(sketch4)
sketch4.AttachmentSupport = (doc.XY_Plane, [""])
sketch4.MapMode = "FlatFace"
sketch4.AttachmentOffset = App.Placement(V(0, 0, 2.4), App.Rotation())
sketch4.addGeometry([
    Part.LineSegment(V(-30.839729, 13.298074, 0), V(-31.839729, 13.298074, 0)),  # 0
    Part.LineSegment(V(-31.839729, 13.298074, 0), V(-31.839729, -44.801926, 0)),  # 1
    Part.LineSegment(V(-31.839729, -44.801926, 0), V(-30.839729, -44.801926, 0)),  # 2
    Part.LineSegment(V(-30.839729, -44.801926, 0), V(-30.839729, 13.298074, 0)),  # 3
    Part.LineSegment(V(-21.839729, 23.298074, 0), V(-21.839729, 22.298074, 0)),  # 4
    Part.LineSegment(V(-21.839729, 22.298074, 0), V(15.160271, 22.298074, 0)),  # 5
    Part.LineSegment(V(15.160271, 22.298074, 0), V(15.160271, 23.298074, 0)),  # 6
    Part.LineSegment(V(15.160271, 23.298074, 0), V(-21.839729, 23.298074, 0)),  # 7
    Part.LineSegment(V(25.160271, -44.801926, 0), V(25.160271, 13.298074, 0)),  # 8
    Part.LineSegment(V(25.160271, 13.298074, 0), V(24.160271, 13.298074, 0)),  # 9
    Part.LineSegment(V(24.160271, 13.298074, 0), V(24.160271, -44.801926, 0)),  # 10
    Part.LineSegment(V(24.160271, -44.801926, 0), V(25.160271, -44.801926, 0)),  # 11
    Part.LineSegment(V(-21.839729, -53.801926, 0), V(-21.839729, -54.801926, 0)),  # 12
    Part.LineSegment(V(-21.839729, -54.801926, 0), V(15.160271, -54.801926, 0)),  # 13
    Part.LineSegment(V(15.160271, -54.801926, 0), V(15.160271, -53.801926, 0)),  # 14
    Part.LineSegment(V(15.160271, -53.801926, 0), V(-21.839729, -53.801926, 0)),  # 15
], False)
sketch4.addConstraint([
    Sketcher.Constraint("Coincident", 0, 2, 1, 1),
    Sketcher.Constraint("Coincident", 1, 2, 2, 1),
    Sketcher.Constraint("Coincident", 2, 2, 3, 1),
    Sketcher.Constraint("Coincident", 3, 2, 0, 1),
    Sketcher.Constraint("Coincident", 4, 2, 5, 1),
    Sketcher.Constraint("Coincident", 5, 2, 6, 1),
    Sketcher.Constraint("Coincident", 6, 2, 7, 1),
    Sketcher.Constraint("Coincident", 7, 2, 4, 1),
    Sketcher.Constraint("Coincident", 8, 2, 9, 1),
    Sketcher.Constraint("Coincident", 9, 2, 10, 1),
    Sketcher.Constraint("Coincident", 10, 2, 11, 1),
    Sketcher.Constraint("Coincident", 11, 2, 8, 1),
    Sketcher.Constraint("Coincident", 12, 2, 13, 1),
    Sketcher.Constraint("Coincident", 13, 2, 14, 1),
    Sketcher.Constraint("Coincident", 14, 2, 15, 1),
    Sketcher.Constraint("Coincident", 15, 2, 12, 1),
    Sketcher.Constraint("Horizontal", 0),
    Sketcher.Constraint("Vertical", 1),
    Sketcher.Constraint("Horizontal", 2),
    Sketcher.Constraint("Vertical", 3),
    Sketcher.Constraint("Vertical", 4),
    Sketcher.Constraint("Horizontal", 5),
    Sketcher.Constraint("Vertical", 6),
    Sketcher.Constraint("Horizontal", 7),
    Sketcher.Constraint("Vertical", 8),
    Sketcher.Constraint("Horizontal", 9),
    Sketcher.Constraint("Vertical", 10),
    Sketcher.Constraint("Horizontal", 11),
    Sketcher.Constraint("Vertical", 12),
    Sketcher.Constraint("Horizontal", 13),
    Sketcher.Constraint("Vertical", 14),
    Sketcher.Constraint("Horizontal", 15),
    Sketcher.Constraint("Horizontal", 3, 2, 8, 2),
    Sketcher.Constraint("Horizontal", 2, 2, 10, 2),
    Sketcher.Constraint("Vertical", 7, 2, 12, 2),
    Sketcher.Constraint("Vertical", 6, 2, 13, 2),
    Sketcher.Constraint("Equal", 2, 9),
    Sketcher.Constraint("Equal", 11, 4),
    Sketcher.Constraint("Equal", 6, 12),
    Sketcher.Constraint("DistanceX", 0, 2, 0, 1, Q("1 mm")),
    Sketcher.Constraint("DistanceX", 5, 1, 5, 2, Q("37 mm")),
    Sketcher.Constraint("DistanceY", 1, 2, 1, 1, Q("58.1 mm")),
    Sketcher.Constraint("DistanceX", 3, 2, 4, 2, Q("9 mm")),
    Sketcher.Constraint("DistanceY", 3, 2, 4, 2, Q("9 mm")),
    Sketcher.Constraint("DistanceX", 5, 2, 8, 2, Q("10 mm")),
    Sketcher.Constraint("DistanceY", 12, 2, 2, 2, Q("10 mm")),
    Sketcher.Constraint("DistanceX", 0, 2, -1, 1, Q("31.839729 mm")),
    Sketcher.Constraint("DistanceY", -1, 1, 0, 2, Q("13.298074 mm")),
])
pad3 = doc.addObject("PartDesign::Pad", "Pad002")
body.addObject(pad3)
pad3.Profile = sketch4
pad3.Length = 0.6

# Sketch on XY plane
sketch5 = doc.addObject("Sketcher::SketchObject", "Sketch004")
body.addObject(sketch5)
sketch5.AttachmentSupport = (doc.XY_Plane, [""])
sketch5.MapMode = "FlatFace"
sketch5.addGeometry([
    Part.LineSegment(V(24.160271, -19.590926, 0), V(25.160271, -19.590926, 0)),  # 0
    Part.LineSegment(V(25.160271, -19.590926, 0), V(25.160271, -46.590926, 0)),  # 1
    Part.LineSegment(V(25.160271, -46.590926, 0), V(24.160271, -46.590926, 0)),  # 2
    Part.LineSegment(V(24.160271, -46.590926, 0), V(24.160271, -48.590926, 0)),  # 3
    Part.LineSegment(V(24.160271, -48.590926, 0), V(23.160271, -48.590926, 0)),  # 4
    Part.LineSegment(V(23.160271, -48.590926, 0), V(23.160271, -17.590926, 0)),  # 5
    Part.LineSegment(V(23.160271, -17.590926, 0), V(24.160271, -17.590926, 0)),  # 6
    Part.LineSegment(V(24.160271, -17.590926, 0), V(24.160271, -19.590926, 0)),  # 7
], False)
sketch5.addConstraint([
    Sketcher.Constraint("Coincident", 0, 2, 1, 1),
    Sketcher.Constraint("Coincident", 1, 2, 2, 1),
    Sketcher.Constraint("Coincident", 2, 2, 3, 1),
    Sketcher.Constraint("Coincident", 3, 2, 4, 1),
    Sketcher.Constraint("Coincident", 4, 2, 5, 1),
    Sketcher.Constraint("Coincident", 5, 2, 6, 1),
    Sketcher.Constraint("Coincident", 6, 2, 7, 1),
    Sketcher.Constraint("Coincident", 7, 2, 0, 1),
    Sketcher.Constraint("Horizontal", 0),
    Sketcher.Constraint("Vertical", 1),
    Sketcher.Constraint("Horizontal", 2),
    Sketcher.Constraint("Vertical", 3),
    Sketcher.Constraint("Horizontal", 4),
    Sketcher.Constraint("Vertical", 5),
    Sketcher.Constraint("Horizontal", 6),
    Sketcher.Constraint("Vertical", 7),
    Sketcher.Constraint("Vertical", 3, 2, 6, 2),
    Sketcher.Constraint("Equal", 2, 4),
    Sketcher.Constraint("Equal", 3, 7),
    Sketcher.Constraint("DistanceX", 0, 1, 0, 2, Q("1 mm")),
    Sketcher.Constraint("DistanceY", 1, 2, 1, 1, Q("27 mm")),
    Sketcher.Constraint("DistanceY", 3, 2, 3, 1, Q("2 mm")),
    Sketcher.Constraint("DistanceX", -1, 1, 0, 2, Q("25.160271 mm")),
    Sketcher.Constraint("DistanceY", 0, 2, -1, 1, Q("19.590926 mm")),
])
pocket2 = doc.addObject("PartDesign::Pocket", "Pocket001")
body.addObject(pocket2)
pocket2.Profile = sketch5
pocket2.Length = 4.4
pocket2.Reversed = True

# Sketch on XY plane
sketch6 = doc.addObject("Sketcher::SketchObject", "Sketch005")
body.addObject(sketch6)
sketch6.AttachmentSupport = (doc.XY_Plane, [""])
sketch6.MapMode = "FlatFace"
sketch6.AttachmentOffset = App.Placement(V(0, 0, 2), App.Rotation())
sketch6.addGeometry([
    Part.ArcOfCircle(Part.Circle(V(17.663979, -26.639784, 0), V(0, 0, 1), 1.999999), math.radians(-0.000043), math.radians(90.000043)),  # 0
    Part.LineSegment(V(17.663978, -24.639785, 0), V(-24.344087, -24.639785, 0)),  # 1
    Part.ArcOfCircle(Part.Circle(V(-24.344088, -26.639784, 0), V(0, 0, 1), 1.999999), math.radians(89.999957), math.radians(180.000043)),  # 2
    Part.LineSegment(V(-26.344087, -26.639785, 0), V(-26.344087, -39.868281, 0)),  # 3
    Part.ArcOfCircle(Part.Circle(V(-24.344087, -39.868281, 0), V(0, 0, 1), 2), math.radians(-179.999994), math.radians(-90.000006)),  # 4
    Part.LineSegment(V(-24.344087, -41.868281, 0), V(17.663978, -41.868281, 0)),  # 5
    Part.ArcOfCircle(Part.Circle(V(17.663978, -39.868281, 0), V(0, 0, 1), 2), math.radians(-89.999994), math.radians(-0.000006)),  # 6
    Part.LineSegment(V(19.663978, -39.868281, 0), V(19.663978, -26.639785, 0)),  # 7
], False)
sketch6.addConstraint([
    Sketcher.Constraint("Tangent", 0, 2, 1, 1),
    Sketcher.Constraint("Tangent", 1, 2, 2, 1),
    Sketcher.Constraint("Tangent", 2, 2, 3, 1),
    Sketcher.Constraint("Tangent", 3, 2, 4, 1),
    Sketcher.Constraint("Tangent", 4, 2, 5, 1),
    Sketcher.Constraint("Tangent", 5, 2, 6, 1),
    Sketcher.Constraint("Tangent", 6, 2, 7, 1),
    Sketcher.Constraint("Tangent", 7, 2, 0, 1),
    Sketcher.Constraint("Horizontal", 1),
    Sketcher.Constraint("Vertical", 3),
    Sketcher.Constraint("Horizontal", 5),
    Sketcher.Constraint("Vertical", 7),
    Sketcher.Constraint("Equal", 0, 2),
    Sketcher.Constraint("Equal", 2, 4),
    Sketcher.Constraint("Equal", 4, 6),
    Sketcher.Constraint("Radius", 0, Q("1.999999 mm")),
    Sketcher.Constraint("DistanceX", 1, 2, 1, 1, Q("42.008065 mm")),
    Sketcher.Constraint("DistanceY", 3, 2, 3, 1, Q("13.228496 mm")),
    Sketcher.Constraint("DistanceX", -1, 1, 0, 3, Q("17.663979 mm")),
    Sketcher.Constraint("DistanceY", 4, 3, -1, 1, Q("39.868281 mm")),
])
pad4 = doc.addObject("PartDesign::Pad", "Pad003")
body.addObject(pad4)
pad4.Profile = sketch6
pad4.Length = 0.5

doc.recompute()
